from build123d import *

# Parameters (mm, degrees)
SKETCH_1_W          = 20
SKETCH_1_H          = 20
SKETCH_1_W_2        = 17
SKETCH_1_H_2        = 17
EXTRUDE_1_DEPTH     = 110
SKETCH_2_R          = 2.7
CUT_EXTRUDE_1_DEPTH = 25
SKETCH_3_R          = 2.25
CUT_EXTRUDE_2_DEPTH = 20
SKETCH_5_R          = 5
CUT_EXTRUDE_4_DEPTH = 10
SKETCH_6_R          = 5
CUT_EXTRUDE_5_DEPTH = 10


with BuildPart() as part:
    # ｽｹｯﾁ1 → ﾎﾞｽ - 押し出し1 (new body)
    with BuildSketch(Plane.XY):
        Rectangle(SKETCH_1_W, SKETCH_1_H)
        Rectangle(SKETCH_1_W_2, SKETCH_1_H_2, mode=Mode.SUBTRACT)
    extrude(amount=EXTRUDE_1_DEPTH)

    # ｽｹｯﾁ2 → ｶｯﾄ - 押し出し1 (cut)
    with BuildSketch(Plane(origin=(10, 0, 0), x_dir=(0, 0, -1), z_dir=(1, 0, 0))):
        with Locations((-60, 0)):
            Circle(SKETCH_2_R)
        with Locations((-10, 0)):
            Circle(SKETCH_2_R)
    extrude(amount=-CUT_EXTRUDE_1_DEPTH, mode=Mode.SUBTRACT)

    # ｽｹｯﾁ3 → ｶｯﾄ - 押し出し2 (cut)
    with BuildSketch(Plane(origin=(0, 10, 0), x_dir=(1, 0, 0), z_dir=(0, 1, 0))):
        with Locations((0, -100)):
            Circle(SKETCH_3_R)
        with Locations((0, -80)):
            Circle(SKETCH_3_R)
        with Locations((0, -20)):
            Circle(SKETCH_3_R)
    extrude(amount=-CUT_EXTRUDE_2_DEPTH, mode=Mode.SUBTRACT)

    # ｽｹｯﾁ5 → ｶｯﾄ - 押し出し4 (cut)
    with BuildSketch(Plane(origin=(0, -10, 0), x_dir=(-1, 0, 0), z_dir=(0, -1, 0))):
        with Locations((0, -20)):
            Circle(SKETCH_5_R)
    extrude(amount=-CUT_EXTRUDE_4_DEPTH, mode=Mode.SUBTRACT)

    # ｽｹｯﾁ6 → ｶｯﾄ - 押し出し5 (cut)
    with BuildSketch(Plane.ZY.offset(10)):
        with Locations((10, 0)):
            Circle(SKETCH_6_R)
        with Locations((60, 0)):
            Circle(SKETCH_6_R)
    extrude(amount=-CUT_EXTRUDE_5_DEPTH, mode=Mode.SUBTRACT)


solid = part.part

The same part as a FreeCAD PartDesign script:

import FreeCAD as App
import Part
import Sketcher


def add_polygon(sketch, points):
    """Adds a closed chain of lines whose ends are joined by coincident constraints."""
    first, n = sketch.GeometryCount, len(points)
    for a, b in zip(points, points[1:] + points[:1]):
        sketch.addGeometry(Part.LineSegment(App.Vector(*a, 0), App.Vector(*b, 0)), False)
    for i in range(n):
        sketch.addConstraint(Sketcher.Constraint("Coincident", first + i, 2, first + (i + 1) % n, 1))

doc = App.newDocument("Part")
body = doc.addObject("PartDesign::Body", "Body")

sketch1 = body.newObject("Sketcher::SketchObject", "Sketch")
sketch1.AttachmentSupport = (doc.getObject("XY_Plane"), [""])
sketch1.MapMode = "FlatFace"
add_polygon(sketch1, [(-10, 10), (-10, -10), (10, -10), (10, 10)])
add_polygon(sketch1, [(8.5, -8.5), (-8.5, -8.5), (-8.5, 8.5), (8.5, 8.5)])
sketch1.addConstraint(Sketcher.Constraint("Vertical", 0))
sketch1.addConstraint(Sketcher.Constraint("Horizontal", 1))
sketch1.addConstraint(Sketcher.Constraint("Vertical", 2))
sketch1.addConstraint(Sketcher.Constraint("Horizontal", 3))
sketch1.addConstraint(Sketcher.Constraint("Horizontal", 4))
sketch1.addConstraint(Sketcher.Constraint("Vertical", 5))
sketch1.addConstraint(Sketcher.Constraint("Horizontal", 6))
sketch1.addConstraint(Sketcher.Constraint("Vertical", 7))
sketch1.addConstraint(Sketcher.Constraint("Symmetric", 0, 2, 2, 2, -1, 1))
sketch1.addConstraint(Sketcher.Constraint("Symmetric", 4, 2, 6, 2, -1, 1))
sketch1.addConstraint(Sketcher.Constraint("Equal", 3, 0))
sketch1.addConstraint(Sketcher.Constraint("Equal", 6, 5))
sketch1.addConstraint(Sketcher.Constraint("DistanceX", 1, 1, 1, 2, 20.0))
sketch1.addConstraint(Sketcher.Constraint("DistanceX", 4, 2, 4, 1, 17.0))
pad1 = body.newObject("PartDesign::Pad", "Pad")
pad1.Profile = sketch1
pad1.Length = 110

sketch2 = body.newObject("Sketcher::SketchObject", "Sketch001")
sketch2.AttachmentSupport = (doc.getObject("YZ_Plane"), [""])
sketch2.MapMode = "FlatFace"
sketch2.AttachmentOffset = App.Placement(App.Vector(0, 0, 10), App.Rotation())
sketch2.addGeometry(Part.Circle(App.Vector(0, 60, 0), App.Vector(0, 0, 1), 2.7), False)
sketch2.addGeometry(Part.Circle(App.Vector(0, 10, 0), App.Vector(0, 0, 1), 2.7), False)
sketch2.addConstraint(Sketcher.Constraint("Equal", 0, 1))
sketch2.addConstraint(Sketcher.Constraint("PointOnObject", 0, 3, -2))
sketch2.addConstraint(Sketcher.Constraint("PointOnObject", 1, 3, -2))
sketch2.addConstraint(Sketcher.Constraint("Diameter", 0, 5.4))
sketch2.addConstraint(Sketcher.Constraint("DistanceY", -1, 1, 0, 3, 60.0))
sketch2.addConstraint(Sketcher.Constraint("DistanceY", -1, 1, 1, 3, 10.0))
pocket1 = body.newObject("PartDesign::Pocket", "Pocket")
pocket1.Profile = sketch2
pocket1.Length = 25

sketch3 = body.newObject("Sketcher::SketchObject", "Sketch002")
sketch3.AttachmentSupport = (doc.getObject("XZ_Plane"), [""])
sketch3.MapMode = "FlatFace"
sketch3.AttachmentOffset = App.Placement(App.Vector(0, 0, -10), App.Rotation())
sketch3.addGeometry(Part.Circle(App.Vector(0, 100, 0), App.Vector(0, 0, 1), 2.25), False)
sketch3.addGeometry(Part.Circle(App.Vector(0, 80, 0), App.Vector(0, 0, 1), 2.25), False)
sketch3.addGeometry(Part.Circle(App.Vector(0, 20, 0), App.Vector(0, 0, 1), 2.25), False)
sketch3.addConstraint(Sketcher.Constraint("Equal", 0, 1))
sketch3.addConstraint(Sketcher.Constraint("Equal", 1, 2))
sketch3.addConstraint(Sketcher.Constraint("PointOnObject", 0, 3, -2))
sketch3.addConstraint(Sketcher.Constraint("PointOnObject", 1, 3, -2))
sketch3.addConstraint(Sketcher.Constraint("PointOnObject", 2, 3, -2))
sketch3.addConstraint(Sketcher.Constraint("Diameter", 0, 4.5))
sketch3.addConstraint(Sketcher.Constraint("DistanceY", -1, 1, 0, 3, 100.0))
sketch3.addConstraint(Sketcher.Constraint("DistanceY", -1, 1, 1, 3, 80.0))
sketch3.addConstraint(Sketcher.Constraint("DistanceY", -1, 1, 2, 3, 20.0))
pocket2 = body.newObject("PartDesign::Pocket", "Pocket001")
pocket2.Profile = sketch3
pocket2.Length = 20
pocket2.Reversed = True

sketch4 = body.newObject("Sketcher::SketchObject", "Sketch003")
sketch4.AttachmentSupport = (doc.getObject("XZ_Plane"), [""])
sketch4.MapMode = "FlatFace"
sketch4.AttachmentOffset = App.Placement(App.Vector(0, 0, 10), App.Rotation())
sketch4.addGeometry(Part.Circle(App.Vector(0, 20, 0), App.Vector(0, 0, 1), 5), False)
sketch4.addConstraint(Sketcher.Constraint("PointOnObject", 0, 3, -2))
sketch4.addConstraint(Sketcher.Constraint("Diameter", 0, 10.0))
sketch4.addConstraint(Sketcher.Constraint("DistanceY", -1, 1, 0, 3, 20.0))
pocket3 = body.newObject("PartDesign::Pocket", "Pocket002")
pocket3.Profile = sketch4
pocket3.Length = 10

sketch5 = body.newObject("Sketcher::SketchObject", "Sketch004")
sketch5.AttachmentSupport = (doc.getObject("YZ_Plane"), [""])
sketch5.MapMode = "FlatFace"
sketch5.AttachmentOffset = App.Placement(App.Vector(0, 0, -10), App.Rotation())
sketch5.addGeometry(Part.Circle(App.Vector(0, 10, 0), App.Vector(0, 0, 1), 5), False)
sketch5.addGeometry(Part.Circle(App.Vector(0, 60, 0), App.Vector(0, 0, 1), 5), False)
sketch5.addConstraint(Sketcher.Constraint("Equal", 0, 1))
sketch5.addConstraint(Sketcher.Constraint("PointOnObject", 0, 3, -2))
sketch5.addConstraint(Sketcher.Constraint("PointOnObject", 1, 3, -2))
sketch5.addConstraint(Sketcher.Constraint("Diameter", 0, 10.0))
sketch5.addConstraint(Sketcher.Constraint("DistanceY", -1, 1, 0, 3, 10.0))
sketch5.addConstraint(Sketcher.Constraint("DistanceY", -1, 1, 1, 3, 60.0))
pocket4 = body.newObject("PartDesign::Pocket", "Pocket003")
pocket4.Profile = sketch5
pocket4.Length = 10
pocket4.Reversed = True

doc.recompute()
